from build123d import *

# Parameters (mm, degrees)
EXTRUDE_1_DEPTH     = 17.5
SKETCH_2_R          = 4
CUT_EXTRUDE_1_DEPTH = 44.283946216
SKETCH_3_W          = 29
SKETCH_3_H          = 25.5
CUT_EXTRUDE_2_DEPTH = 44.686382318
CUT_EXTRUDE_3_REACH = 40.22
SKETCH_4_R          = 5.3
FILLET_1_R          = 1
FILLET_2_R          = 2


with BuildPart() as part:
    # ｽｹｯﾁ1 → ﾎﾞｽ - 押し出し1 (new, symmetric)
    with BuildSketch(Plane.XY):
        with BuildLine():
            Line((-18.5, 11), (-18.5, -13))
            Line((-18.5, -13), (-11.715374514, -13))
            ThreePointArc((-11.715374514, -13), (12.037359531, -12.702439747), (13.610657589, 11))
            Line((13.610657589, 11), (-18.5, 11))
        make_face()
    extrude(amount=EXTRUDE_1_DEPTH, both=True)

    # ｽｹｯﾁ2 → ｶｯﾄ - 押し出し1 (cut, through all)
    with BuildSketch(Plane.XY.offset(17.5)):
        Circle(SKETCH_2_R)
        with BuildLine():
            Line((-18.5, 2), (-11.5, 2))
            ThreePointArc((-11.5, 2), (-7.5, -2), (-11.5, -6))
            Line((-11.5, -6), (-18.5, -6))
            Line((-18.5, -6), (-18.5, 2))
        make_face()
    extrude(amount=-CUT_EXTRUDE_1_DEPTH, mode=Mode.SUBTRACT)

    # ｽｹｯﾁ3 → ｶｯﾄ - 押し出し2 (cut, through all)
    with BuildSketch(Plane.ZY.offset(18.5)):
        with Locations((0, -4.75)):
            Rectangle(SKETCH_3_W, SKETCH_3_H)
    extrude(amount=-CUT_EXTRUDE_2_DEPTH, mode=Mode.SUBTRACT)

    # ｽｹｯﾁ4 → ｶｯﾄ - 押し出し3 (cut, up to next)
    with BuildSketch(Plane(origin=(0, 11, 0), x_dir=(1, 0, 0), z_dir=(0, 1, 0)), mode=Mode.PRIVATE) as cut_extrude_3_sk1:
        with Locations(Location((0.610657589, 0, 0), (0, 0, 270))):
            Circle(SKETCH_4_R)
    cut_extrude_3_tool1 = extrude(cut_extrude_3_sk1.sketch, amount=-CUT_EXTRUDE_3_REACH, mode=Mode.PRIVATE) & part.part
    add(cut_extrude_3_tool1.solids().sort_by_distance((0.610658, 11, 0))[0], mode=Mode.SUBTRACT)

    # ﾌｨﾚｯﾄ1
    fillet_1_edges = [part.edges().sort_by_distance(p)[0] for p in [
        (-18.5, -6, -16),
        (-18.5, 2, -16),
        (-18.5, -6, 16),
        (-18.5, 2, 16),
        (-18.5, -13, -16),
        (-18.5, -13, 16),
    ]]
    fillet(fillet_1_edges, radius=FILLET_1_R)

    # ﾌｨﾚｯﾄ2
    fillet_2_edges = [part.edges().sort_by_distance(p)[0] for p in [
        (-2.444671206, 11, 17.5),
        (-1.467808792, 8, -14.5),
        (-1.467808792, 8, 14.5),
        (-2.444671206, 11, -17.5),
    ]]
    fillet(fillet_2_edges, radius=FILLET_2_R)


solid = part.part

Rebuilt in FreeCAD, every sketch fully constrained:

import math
import FreeCAD as App
import Part
import Sketcher
Q = App.Units.Quantity


def edges_at(feature, points):
    """Names of the edges that pass closest to the given points."""
    edges = feature.Shape.Edges
    near = lambda p: min(range(len(edges)), key=lambda i: edges[i].distToShape(Part.Vertex(*p))[0])
    return sorted({f"Edge{near(p) + 1}" for p in points})


def add_polygon(sketch, points):
    """Adds a closed chain of lines whose ends are joined by coincident constraints."""
    first, n = sketch.GeometryCount, len(points)
    for a, b in zip(points, points[1:] + points[:1]):
        sketch.addGeometry(Part.LineSegment(App.Vector(*a, 0), App.Vector(*b, 0)), False)
    for i in range(n):
        sketch.addConstraint(Sketcher.Constraint("Coincident", first + i, 2, first + (i + 1) % n, 1))

doc = App.newDocument("Part")
body = doc.addObject("PartDesign::Body", "Body")

sketch1 = body.newObject("Sketcher::SketchObject", "Sketch")
sketch1.AttachmentSupport = (doc.getObject("XY_Plane"), [""])
sketch1.MapMode = "FlatFace"
sketch1.addGeometry([
    Part.LineSegment(App.Vector(-18.5, 11, 0), App.Vector(-18.5, -13, 0)),
    Part.LineSegment(App.Vector(-18.5, -13, 0), App.Vector(-11.715375, -13, 0)),
    Part.ArcOfCircle(Part.Circle(App.Vector(0, 0, 0), App.Vector(0, 0, 1), 17.5), math.radians(-132.024628), math.radians(38.944804)),
    Part.LineSegment(App.Vector(13.610658, 11, 0), App.Vector(-18.5, 11, 0)),
], False)
sketch1.addConstraint([
    Sketcher.Constraint("Coincident", 0, 2, 1, 1),
    Sketcher.Constraint("Coincident", 1, 2, 2, 1),
    Sketcher.Constraint("Coincident", 2, 2, 3, 1),
    Sketcher.Constraint("Coincident", 3, 2, 0, 1),
    Sketcher.Constraint("Vertical", 0),
    Sketcher.Constraint("Horizontal", 1),
    Sketcher.Constraint("Horizontal", 3),
    Sketcher.Constraint("Coincident", 2, 3, -1, 1),
    Sketcher.Constraint("Radius", 2, Q("17.5 mm")),
    Sketcher.Constraint("DistanceY", 0, 2, 0, 1, Q("24 mm")),
    Sketcher.Constraint("DistanceY", 0, 2, -1, 1, Q("13 mm")),
    Sketcher.Constraint("DistanceX", 0, 2, -1, 1, Q("18.5 mm")),
])
pad1 = body.newObject("PartDesign::Pad", "Pad")
pad1.Profile = sketch1
pad1.Length = 35
pad1.Midplane = True

sketch2 = body.newObject("Sketcher::SketchObject", "Sketch001")
sketch2.AttachmentSupport = (doc.getObject("XY_Plane"), [""])
sketch2.MapMode = "FlatFace"
sketch2.AttachmentOffset = App.Placement(App.Vector(0, 0, 17.5), App.Rotation())
sketch2.addGeometry([
    Part.Circle(App.Vector(0, 0, 0), App.Vector(0, 0, 1), 4),
    Part.LineSegment(App.Vector(-11.5, 2, 0), App.Vector(-18.5, 2, 0)),
    Part.LineSegment(App.Vector(-18.5, 2, 0), App.Vector(-18.5, -6, 0)),
    Part.LineSegment(App.Vector(-18.5, -6, 0), App.Vector(-11.5, -6, 0)),
    Part.ArcOfCircle(Part.Circle(App.Vector(-11.5, -2, 0), App.Vector(0, 0, 1), 4), math.radians(-90), math.radians(90)),
], False)
sketch2.addConstraint([
    Sketcher.Constraint("Coincident", 1, 2, 2, 1),
    Sketcher.Constraint("Coincident", 2, 2, 3, 1),
    Sketcher.Constraint("Tangent", 3, 2, 4, 1),
    Sketcher.Constraint("Tangent", 4, 2, 1, 1),
    Sketcher.Constraint("Horizontal", 1),
    Sketcher.Constraint("Vertical", 2),
    Sketcher.Constraint("Horizontal", 3),
    Sketcher.Constraint("Coincident", 0, 3, -1, 1),
    Sketcher.Constraint("Equal", 0, 4),
    Sketcher.Constraint("Diameter", 0, Q("8 mm")),
    Sketcher.Constraint("DistanceX", 1, 2, 1, 1, Q("7 mm")),
    Sketcher.Constraint("DistanceY", 4, 3, -1, 1, Q("2 mm")),
    Sketcher.Constraint("DistanceX", 4, 3, -1, 1, Q("11.5 mm")),
])
pocket1 = body.newObject("PartDesign::Pocket", "Pocket")
pocket1.Profile = sketch2
pocket1.Type = "ThroughAll"

sketch3 = body.newObject("Sketcher::SketchObject", "Sketch002")
sketch3.AttachmentSupport = (doc.getObject("YZ_Plane"), [""])
sketch3.MapMode = "FlatFace"
sketch3.AttachmentOffset = App.Placement(App.Vector(0, 0, -18.5), App.Rotation())
add_polygon(sketch3, [(8, -14.5), (-17.5, -14.5), (-17.5, 14.5), (8, 14.5)])
sketch3.addConstraint([
    Sketcher.Constraint("Horizontal", 0),
    Sketcher.Constraint("Vertical", 1),
    Sketcher.Constraint("Horizontal", 2),
    Sketcher.Constraint("Vertical", 3),
    Sketcher.Constraint("DistanceY", 1, 1, 1, 2, Q("29 mm")),
    Sketcher.Constraint("DistanceX", 0, 2, 0, 1, Q("25.5 mm")),
    Sketcher.Constraint("DistanceX", -1, 1, 2, 2, Q("8 mm")),
    Sketcher.Constraint("DistanceY", 0, 2, -1, 1, Q("14.5 mm")),
])
pocket2 = body.newObject("PartDesign::Pocket", "Pocket001")
pocket2.Profile = sketch3
pocket2.Type = "ThroughAll"
pocket2.Reversed = True

sketch4 = body.newObject("Sketcher::SketchObject", "Sketch003")
sketch4.AttachmentSupport = (doc.getObject("XZ_Plane"), [""])
sketch4.MapMode = "FlatFace"
sketch4.AttachmentOffset = App.Placement(App.Vector(0, 0, -11), App.Rotation())
sketch4.addGeometry(Part.Circle(App.Vector(0.610658, 0, 0), App.Vector(0, 0, 1), 5.3), False)
sketch4.addConstraint([
    Sketcher.Constraint("PointOnObject", 0, 3, -1),
    Sketcher.Constraint("Diameter", 0, Q("10.6 mm")),
    Sketcher.Constraint("DistanceX", -1, 1, 0, 3, Q("0.610658 mm")),
])
pocket3 = body.newObject("PartDesign::Pocket", "Pocket002")
pocket3.Profile = sketch4
pocket3.Type = "UpToFirst"
pocket3.Reversed = True
doc.recompute()

fillet = body.newObject("PartDesign::Fillet", "Fillet")
fillet.Base = (pocket3, edges_at(pocket3, [
    (-18.5, -6, -16),
    (-18.5, 2, -16),
    (-18.5, -6, 16),
    (-18.5, 2, 16),
    (-18.5, -13, -16),
    (-18.5, -13, 16),
]))
fillet.Radius = 1
doc.recompute()

fillet2 = body.newObject("PartDesign::Fillet", "Fillet001")
fillet2.Base = (fillet, edges_at(fillet, [
    (-2.445, 11, 17.5),
    (-1.468, 8, -14.5),
    (-1.468, 8, 14.5),
    (-2.445, 11, -17.5),
]))
fillet2.Radius = 2

doc.recompute()
